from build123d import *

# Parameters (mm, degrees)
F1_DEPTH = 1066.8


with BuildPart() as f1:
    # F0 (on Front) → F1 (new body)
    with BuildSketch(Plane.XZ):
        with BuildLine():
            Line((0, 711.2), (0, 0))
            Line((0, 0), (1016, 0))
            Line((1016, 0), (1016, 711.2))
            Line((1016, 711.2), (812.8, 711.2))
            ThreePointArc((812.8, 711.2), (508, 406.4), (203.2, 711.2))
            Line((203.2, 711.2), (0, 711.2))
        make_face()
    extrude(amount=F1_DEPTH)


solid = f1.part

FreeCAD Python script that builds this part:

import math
import FreeCAD as App
import Part
import Sketcher
Q = App.Units.Quantity

doc = App.newDocument("Part")
body = doc.addObject("PartDesign::Body", "Body")

# Sketch on XZ plane
sketch1 = doc.addObject("Sketcher::SketchObject", "Sketch")
body.addObject(sketch1)
sketch1.AttachmentSupport = (doc.XZ_Plane, [""])
sketch1.MapMode = "FlatFace"
sketch1.addGeometry(Part.LineSegment(App.Vector(0, 711, 0), App.Vector(0, 0, 0)), False)
sketch1.addGeometry(Part.LineSegment(App.Vector(0, 0, 0), App.Vector(1016, 0, 0)), False)
sketch1.addGeometry(Part.LineSegment(App.Vector(1016, 0, 0), App.Vector(1016, 711, 0)), False)
sketch1.addGeometry(Part.LineSegment(App.Vector(1016, 711, 0), App.Vector(813, 711, 0)), False)
sketch1.addGeometry(Part.ArcOfCircle(Part.Circle(App.Vector(508, 711, 0), App.Vector(0, 0, 1), 305), math.radians(180), math.radians(360)), False)
sketch1.addGeometry(Part.LineSegment(App.Vector(203, 711, 0), App.Vector(0, 711, 0)), False)
sketch1.addConstraint(Sketcher.Constraint("Coincident", 0, 2, 1, 1))
sketch1.addConstraint(Sketcher.Constraint("Coincident", 1, 2, 2, 1))
sketch1.addConstraint(Sketcher.Constraint("Coincident", 2, 2, 3, 1))
sketch1.addConstraint(Sketcher.Constraint("Coincident", 3, 2, 4, 2))
sketch1.addConstraint(Sketcher.Constraint("Coincident", 4, 1, 5, 1))
sketch1.addConstraint(Sketcher.Constraint("Coincident", 5, 2, 0, 1))
sketch1.addConstraint(Sketcher.Constraint("Vertical", 0))
sketch1.addConstraint(Sketcher.Constraint("Horizontal", 1))
sketch1.addConstraint(Sketcher.Constraint("Vertical", 2))
sketch1.addConstraint(Sketcher.Constraint("Horizontal", 3))
sketch1.addConstraint(Sketcher.Constraint("Horizontal", 5))
sketch1.addConstraint(Sketcher.Constraint("Coincident", 0, 2, -1, 1))
sketch1.addConstraint(Sketcher.Constraint("Horizontal", 4, 3, 2, 2))
sketch1.addConstraint(Sketcher.Constraint("Horizontal", 3, 2, 4, 1))
sketch1.addConstraint(Sketcher.Constraint("Equal", 3, 5))
sketch1.addConstraint(Sketcher.Constraint("Radius", 4, Q("12 in")))
sketch1.addConstraint(Sketcher.Constraint("DistanceX", 1, 1, 1, 2, Q("40 in")))
sketch1.addConstraint(Sketcher.Constraint("DistanceY", 0, 2, 0, 1, Q("28 in")))
pad1 = doc.addObject("PartDesign::Pad", "Pad")
body.addObject(pad1)
pad1.Profile = sketch1
pad1.Length = Q("42 in")

doc.recompute()
